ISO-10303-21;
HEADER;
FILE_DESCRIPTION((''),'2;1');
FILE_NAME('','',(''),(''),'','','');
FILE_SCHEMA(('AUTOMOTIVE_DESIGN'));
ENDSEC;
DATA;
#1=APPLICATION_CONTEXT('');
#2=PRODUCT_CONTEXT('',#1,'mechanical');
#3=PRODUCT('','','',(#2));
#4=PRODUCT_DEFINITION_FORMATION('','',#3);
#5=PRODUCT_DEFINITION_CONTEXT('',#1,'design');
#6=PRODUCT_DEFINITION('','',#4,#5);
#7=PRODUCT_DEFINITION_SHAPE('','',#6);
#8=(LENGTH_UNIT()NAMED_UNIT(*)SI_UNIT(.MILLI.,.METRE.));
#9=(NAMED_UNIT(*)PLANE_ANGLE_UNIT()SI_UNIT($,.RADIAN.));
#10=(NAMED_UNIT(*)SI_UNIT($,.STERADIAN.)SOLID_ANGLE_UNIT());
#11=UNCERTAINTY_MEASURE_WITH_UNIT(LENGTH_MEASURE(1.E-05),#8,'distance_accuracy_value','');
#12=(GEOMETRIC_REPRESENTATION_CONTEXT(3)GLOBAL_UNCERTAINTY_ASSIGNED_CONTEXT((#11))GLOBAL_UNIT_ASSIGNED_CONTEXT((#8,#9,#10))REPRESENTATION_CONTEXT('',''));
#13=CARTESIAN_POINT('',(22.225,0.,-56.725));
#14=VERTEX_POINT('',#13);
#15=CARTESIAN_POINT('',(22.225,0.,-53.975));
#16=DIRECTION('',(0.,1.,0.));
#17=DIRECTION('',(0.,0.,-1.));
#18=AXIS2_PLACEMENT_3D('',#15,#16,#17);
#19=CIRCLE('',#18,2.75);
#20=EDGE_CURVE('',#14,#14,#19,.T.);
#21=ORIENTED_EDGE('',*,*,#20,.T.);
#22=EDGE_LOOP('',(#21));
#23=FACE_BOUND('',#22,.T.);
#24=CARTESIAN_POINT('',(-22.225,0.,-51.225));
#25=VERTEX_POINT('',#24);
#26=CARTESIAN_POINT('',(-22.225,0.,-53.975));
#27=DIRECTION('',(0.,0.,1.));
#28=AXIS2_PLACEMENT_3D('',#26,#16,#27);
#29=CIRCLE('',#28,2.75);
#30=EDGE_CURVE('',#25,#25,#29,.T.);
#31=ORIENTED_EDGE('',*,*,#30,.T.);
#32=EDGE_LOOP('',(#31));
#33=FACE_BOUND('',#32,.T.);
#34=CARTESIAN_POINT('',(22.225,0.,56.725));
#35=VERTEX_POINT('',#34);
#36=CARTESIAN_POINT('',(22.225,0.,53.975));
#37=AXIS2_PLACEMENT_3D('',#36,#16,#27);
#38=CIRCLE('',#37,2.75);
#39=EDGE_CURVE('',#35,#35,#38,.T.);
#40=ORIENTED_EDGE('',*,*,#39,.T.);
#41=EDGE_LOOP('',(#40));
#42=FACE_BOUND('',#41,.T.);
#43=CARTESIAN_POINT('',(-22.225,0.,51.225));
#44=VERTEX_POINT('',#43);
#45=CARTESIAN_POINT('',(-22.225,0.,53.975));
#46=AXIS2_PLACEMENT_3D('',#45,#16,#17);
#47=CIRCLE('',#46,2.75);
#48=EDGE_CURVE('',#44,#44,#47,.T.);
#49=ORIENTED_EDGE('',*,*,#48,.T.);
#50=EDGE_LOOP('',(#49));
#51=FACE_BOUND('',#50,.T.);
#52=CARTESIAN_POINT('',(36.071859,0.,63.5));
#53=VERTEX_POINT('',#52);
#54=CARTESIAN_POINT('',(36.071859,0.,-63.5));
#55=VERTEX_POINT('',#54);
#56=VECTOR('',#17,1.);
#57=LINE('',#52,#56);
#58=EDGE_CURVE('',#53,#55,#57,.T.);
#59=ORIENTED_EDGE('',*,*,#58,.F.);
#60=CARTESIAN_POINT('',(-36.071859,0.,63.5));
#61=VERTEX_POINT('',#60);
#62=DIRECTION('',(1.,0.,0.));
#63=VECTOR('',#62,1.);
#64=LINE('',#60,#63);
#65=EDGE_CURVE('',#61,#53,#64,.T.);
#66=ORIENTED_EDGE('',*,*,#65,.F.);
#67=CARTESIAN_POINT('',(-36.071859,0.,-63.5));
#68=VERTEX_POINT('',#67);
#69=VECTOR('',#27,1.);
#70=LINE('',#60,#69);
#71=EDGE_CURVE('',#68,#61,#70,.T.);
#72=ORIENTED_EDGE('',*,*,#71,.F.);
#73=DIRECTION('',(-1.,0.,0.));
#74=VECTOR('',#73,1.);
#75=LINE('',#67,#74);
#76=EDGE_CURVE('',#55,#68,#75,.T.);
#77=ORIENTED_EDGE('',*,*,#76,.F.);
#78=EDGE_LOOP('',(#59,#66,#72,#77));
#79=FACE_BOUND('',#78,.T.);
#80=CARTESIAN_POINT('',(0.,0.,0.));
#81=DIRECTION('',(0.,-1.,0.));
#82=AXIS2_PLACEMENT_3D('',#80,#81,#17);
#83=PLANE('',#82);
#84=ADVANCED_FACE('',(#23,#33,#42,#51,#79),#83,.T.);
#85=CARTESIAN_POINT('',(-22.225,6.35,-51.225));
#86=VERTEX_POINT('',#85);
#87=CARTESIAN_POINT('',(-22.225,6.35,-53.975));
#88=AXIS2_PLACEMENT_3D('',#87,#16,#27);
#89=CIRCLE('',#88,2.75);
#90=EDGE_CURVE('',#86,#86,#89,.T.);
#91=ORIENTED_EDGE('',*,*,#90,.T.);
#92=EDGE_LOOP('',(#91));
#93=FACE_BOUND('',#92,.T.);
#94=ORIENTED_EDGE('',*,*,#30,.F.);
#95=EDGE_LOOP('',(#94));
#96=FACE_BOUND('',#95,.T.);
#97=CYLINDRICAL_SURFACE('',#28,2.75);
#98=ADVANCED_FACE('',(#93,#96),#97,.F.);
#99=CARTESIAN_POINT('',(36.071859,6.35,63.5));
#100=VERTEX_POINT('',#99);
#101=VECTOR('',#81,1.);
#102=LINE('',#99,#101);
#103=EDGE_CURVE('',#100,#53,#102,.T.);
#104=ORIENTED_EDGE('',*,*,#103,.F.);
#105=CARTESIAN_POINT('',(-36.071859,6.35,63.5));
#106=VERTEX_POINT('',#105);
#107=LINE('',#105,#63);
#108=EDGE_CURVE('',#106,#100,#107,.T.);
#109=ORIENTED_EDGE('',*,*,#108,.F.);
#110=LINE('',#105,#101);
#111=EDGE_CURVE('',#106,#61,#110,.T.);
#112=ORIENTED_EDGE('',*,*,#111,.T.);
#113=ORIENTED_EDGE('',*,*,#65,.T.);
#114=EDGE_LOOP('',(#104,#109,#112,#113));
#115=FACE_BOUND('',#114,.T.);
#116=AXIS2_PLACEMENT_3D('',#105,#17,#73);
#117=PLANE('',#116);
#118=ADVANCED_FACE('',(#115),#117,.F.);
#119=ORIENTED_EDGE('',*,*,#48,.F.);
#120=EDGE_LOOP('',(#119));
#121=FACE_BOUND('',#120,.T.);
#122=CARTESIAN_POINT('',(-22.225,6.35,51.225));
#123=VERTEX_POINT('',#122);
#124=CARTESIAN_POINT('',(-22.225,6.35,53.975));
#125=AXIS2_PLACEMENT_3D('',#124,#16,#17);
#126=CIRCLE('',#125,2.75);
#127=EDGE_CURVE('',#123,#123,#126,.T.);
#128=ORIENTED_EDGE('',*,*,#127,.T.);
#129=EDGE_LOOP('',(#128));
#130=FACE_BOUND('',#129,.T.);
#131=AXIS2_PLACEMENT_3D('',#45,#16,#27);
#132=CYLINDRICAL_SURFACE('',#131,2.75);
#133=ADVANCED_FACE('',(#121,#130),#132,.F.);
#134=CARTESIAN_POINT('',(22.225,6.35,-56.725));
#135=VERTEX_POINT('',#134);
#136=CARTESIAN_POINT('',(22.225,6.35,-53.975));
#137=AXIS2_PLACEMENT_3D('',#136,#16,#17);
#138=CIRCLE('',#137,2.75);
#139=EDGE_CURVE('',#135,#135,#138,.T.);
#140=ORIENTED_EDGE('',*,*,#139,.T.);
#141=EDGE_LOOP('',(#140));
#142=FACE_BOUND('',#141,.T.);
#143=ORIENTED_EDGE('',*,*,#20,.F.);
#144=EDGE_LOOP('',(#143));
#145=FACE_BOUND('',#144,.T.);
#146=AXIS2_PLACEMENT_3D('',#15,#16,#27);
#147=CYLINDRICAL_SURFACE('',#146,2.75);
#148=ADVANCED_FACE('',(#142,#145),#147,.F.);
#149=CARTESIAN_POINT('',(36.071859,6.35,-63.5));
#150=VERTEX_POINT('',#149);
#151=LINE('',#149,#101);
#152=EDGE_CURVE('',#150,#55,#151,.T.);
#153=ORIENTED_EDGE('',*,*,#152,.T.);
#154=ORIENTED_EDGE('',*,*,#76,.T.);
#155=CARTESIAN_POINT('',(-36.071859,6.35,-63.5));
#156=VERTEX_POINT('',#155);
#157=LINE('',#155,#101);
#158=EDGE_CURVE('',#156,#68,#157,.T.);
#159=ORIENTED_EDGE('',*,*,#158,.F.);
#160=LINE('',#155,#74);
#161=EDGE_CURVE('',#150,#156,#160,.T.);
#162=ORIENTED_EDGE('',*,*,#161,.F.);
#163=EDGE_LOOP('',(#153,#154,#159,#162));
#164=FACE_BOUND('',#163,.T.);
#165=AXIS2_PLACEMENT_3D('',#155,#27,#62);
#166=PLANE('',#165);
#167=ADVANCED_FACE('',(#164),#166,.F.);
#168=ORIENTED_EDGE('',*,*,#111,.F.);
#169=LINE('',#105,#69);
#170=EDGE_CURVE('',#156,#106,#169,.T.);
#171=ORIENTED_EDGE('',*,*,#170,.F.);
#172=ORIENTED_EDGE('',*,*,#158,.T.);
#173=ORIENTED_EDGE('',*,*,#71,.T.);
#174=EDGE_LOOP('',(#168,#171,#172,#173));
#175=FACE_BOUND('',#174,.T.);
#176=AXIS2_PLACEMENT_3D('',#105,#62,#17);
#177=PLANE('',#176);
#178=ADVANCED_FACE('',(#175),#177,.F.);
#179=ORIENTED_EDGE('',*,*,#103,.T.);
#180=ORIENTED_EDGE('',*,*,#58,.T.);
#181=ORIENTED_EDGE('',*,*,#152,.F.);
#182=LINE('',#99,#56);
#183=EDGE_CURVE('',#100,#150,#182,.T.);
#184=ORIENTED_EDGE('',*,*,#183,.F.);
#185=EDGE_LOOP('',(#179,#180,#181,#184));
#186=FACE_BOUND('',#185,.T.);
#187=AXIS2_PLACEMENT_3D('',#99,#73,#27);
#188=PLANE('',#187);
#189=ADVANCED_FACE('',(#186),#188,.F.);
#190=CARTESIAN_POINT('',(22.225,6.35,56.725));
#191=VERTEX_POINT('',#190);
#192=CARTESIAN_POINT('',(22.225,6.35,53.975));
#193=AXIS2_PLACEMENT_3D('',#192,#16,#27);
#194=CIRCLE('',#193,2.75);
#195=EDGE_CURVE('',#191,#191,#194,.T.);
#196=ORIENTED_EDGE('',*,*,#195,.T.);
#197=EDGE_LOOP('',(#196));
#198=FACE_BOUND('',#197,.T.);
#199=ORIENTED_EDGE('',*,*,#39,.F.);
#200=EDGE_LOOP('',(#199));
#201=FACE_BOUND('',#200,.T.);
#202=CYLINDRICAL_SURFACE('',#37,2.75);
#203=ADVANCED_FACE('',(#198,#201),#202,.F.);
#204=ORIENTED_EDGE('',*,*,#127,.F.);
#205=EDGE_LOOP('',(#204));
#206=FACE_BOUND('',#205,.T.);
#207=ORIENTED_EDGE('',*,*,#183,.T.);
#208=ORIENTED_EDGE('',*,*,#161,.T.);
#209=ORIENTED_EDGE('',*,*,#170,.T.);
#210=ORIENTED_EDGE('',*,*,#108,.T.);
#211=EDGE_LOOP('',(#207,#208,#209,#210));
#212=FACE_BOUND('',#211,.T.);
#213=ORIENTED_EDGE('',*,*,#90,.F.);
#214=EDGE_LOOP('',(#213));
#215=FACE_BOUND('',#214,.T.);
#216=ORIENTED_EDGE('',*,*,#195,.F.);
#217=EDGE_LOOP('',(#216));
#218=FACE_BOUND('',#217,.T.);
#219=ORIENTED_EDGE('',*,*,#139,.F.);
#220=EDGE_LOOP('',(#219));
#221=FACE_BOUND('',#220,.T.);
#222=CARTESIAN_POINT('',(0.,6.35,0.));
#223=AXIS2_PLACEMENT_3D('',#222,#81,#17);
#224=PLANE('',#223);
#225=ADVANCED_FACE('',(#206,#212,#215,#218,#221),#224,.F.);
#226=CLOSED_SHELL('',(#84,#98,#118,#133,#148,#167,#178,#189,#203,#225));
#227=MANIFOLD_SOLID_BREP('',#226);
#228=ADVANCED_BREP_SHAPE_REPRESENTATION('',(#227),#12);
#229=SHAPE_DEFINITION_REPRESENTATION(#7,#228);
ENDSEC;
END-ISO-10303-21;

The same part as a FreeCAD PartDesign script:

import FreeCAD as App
import Part
import Sketcher

V = App.Vector
Q = App.Units.Quantity


def add_polygon(sketch, points):
    """Adds a closed chain of lines whose ends are joined by coincident constraints."""
    first, n = sketch.GeometryCount, len(points)
    for a, b in zip(points, points[1:] + points[:1]):
        sketch.addGeometry(Part.LineSegment(App.Vector(*a, 0), App.Vector(*b, 0)), False)
    for i in range(n):
        sketch.addConstraint(Sketcher.Constraint("Coincident", first + i, 2, first + (i + 1) % n, 1))

doc = App.newDocument("Part")
body = doc.addObject("PartDesign::Body", "Body")

sketch1 = body.newObject("Sketcher::SketchObject", "Sketch")
sketch1.AttachmentSupport = (doc.getObject("XZ_Plane"), [""])
sketch1.MapMode = "FlatFace"
add_polygon(sketch1, [(-36, -64), (-36, 64), (36, 64), (36, -64)])
sketch1.addConstraint([
    Sketcher.Constraint("Vertical", 0),
    Sketcher.Constraint("Horizontal", 1),
    Sketcher.Constraint("Vertical", 2),
    Sketcher.Constraint("Horizontal", 3),
    Sketcher.Constraint("Symmetric", 0, 2, 2, 2, -1, 1),
    Sketcher.Constraint("DistanceY", 0, 1, 0, 2, Q("5 in")),
    Sketcher.Constraint("DistanceX", 1, 1, 1, 2, 72.143719),
])
pad1 = body.newObject("PartDesign::Pad", "Pad")
pad1.Profile = sketch1
pad1.Length = Q("0.25 in")
pad1.Reversed = True

sketch2 = body.newObject("Sketcher::SketchObject", "Sketch001")
sketch2.AttachmentSupport = (doc.getObject("XZ_Plane"), [""])
sketch2.MapMode = "FlatFace"
sketch2.AttachmentOffset = App.Placement(V(0, 0, -0.25 * 25.4), App.Rotation())
sketch2.addGeometry([
    Part.Circle(V(-22.2, -54, 0), V(0, 0, 1), 2.8),
    Part.Circle(V(22.2, -54, 0), V(0, 0, 1), 2.8),
    Part.Circle(V(22.2, 54, 0), V(0, 0, 1), 2.8),
    Part.Circle(V(-22.2, 54, 0), V(0, 0, 1), 2.8),
], False)
sketch2.addConstraint([
    Sketcher.Constraint("Equal", 0, 1),
    Sketcher.Constraint("Equal", 1, 2),
    Sketcher.Constraint("Equal", 2, 3),
    Sketcher.Constraint("Symmetric", 0, 3, 2, 3, -1, 1),
    Sketcher.Constraint("Symmetric", 1, 3, 3, 3, -1, 1),
    Sketcher.Constraint("Symmetric", 0, 3, 1, 3, -2),
    Sketcher.Constraint("Diameter", 0, 5.5),
    Sketcher.Constraint("DistanceX", 0, 3, 1, 3, Q("1.75 in")),
    Sketcher.Constraint("DistanceY", 1, 3, 2, 3, Q("4.25 in")),
])
pocket1 = body.newObject("PartDesign::Pocket", "Pocket")
pocket1.Profile = sketch2
pocket1.Length = Q("0.25 in")
pocket1.Reversed = True

doc.recompute()
